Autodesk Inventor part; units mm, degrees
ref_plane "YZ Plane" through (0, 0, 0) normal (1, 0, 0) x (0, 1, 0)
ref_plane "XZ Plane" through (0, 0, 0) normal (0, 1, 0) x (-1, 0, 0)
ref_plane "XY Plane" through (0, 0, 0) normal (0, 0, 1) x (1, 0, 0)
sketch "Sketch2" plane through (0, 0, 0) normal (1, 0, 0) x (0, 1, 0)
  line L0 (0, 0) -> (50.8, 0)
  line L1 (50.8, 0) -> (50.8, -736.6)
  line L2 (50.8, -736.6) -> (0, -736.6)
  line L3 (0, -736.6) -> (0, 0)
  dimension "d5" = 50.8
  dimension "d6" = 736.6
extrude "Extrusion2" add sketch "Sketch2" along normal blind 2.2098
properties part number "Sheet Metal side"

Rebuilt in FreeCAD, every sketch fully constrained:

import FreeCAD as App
import Part
import Sketcher
from FreeCAD import Vector
Q = App.Units.Quantity


def add_polygon(sketch, points):
    """Adds a closed chain of lines whose ends are joined by coincident constraints."""
    first, n = sketch.GeometryCount, len(points)
    for a, b in zip(points, points[1:] + points[:1]):
        sketch.addGeometry(Part.LineSegment(App.Vector(*a, 0), App.Vector(*b, 0)), False)
    for i in range(n):
        sketch.addConstraint(Sketcher.Constraint("Coincident", first + i, 2, first + (i + 1) % n, 1))

doc = App.newDocument("Part")
body = doc.addObject("PartDesign::Body", "Body")

# Sketch on YZ plane
sketch1 = body.newObject("Sketcher::SketchObject", "Sketch")
sketch1.AttachmentSupport = (doc.getObject("YZ_Plane"), [""])
sketch1.MapMode = "FlatFace"
add_polygon(sketch1, [(50.8, 0), (0, 0), (0, -736.6), (50.8, -736.6)])  # lines 0-3
sketch1.addConstraint([
    Sketcher.Constraint("Horizontal", 0),
    Sketcher.Constraint("Vertical", 1),
    Sketcher.Constraint("Horizontal", 2),
    Sketcher.Constraint("Vertical", 3),
    Sketcher.Constraint("Coincident", 0, 2, -1, 1),
    Sketcher.Constraint("DistanceX", 0, 2, 0, 1, Q("2 in")),
    Sketcher.Constraint("DistanceY", 1, 2, 1, 1, Q("29 in")),
])
pad1 = body.newObject("PartDesign::Pad", "Pad")
pad1.Profile = sketch1
pad1.Length = Q("0.087 in")

doc.recompute()
